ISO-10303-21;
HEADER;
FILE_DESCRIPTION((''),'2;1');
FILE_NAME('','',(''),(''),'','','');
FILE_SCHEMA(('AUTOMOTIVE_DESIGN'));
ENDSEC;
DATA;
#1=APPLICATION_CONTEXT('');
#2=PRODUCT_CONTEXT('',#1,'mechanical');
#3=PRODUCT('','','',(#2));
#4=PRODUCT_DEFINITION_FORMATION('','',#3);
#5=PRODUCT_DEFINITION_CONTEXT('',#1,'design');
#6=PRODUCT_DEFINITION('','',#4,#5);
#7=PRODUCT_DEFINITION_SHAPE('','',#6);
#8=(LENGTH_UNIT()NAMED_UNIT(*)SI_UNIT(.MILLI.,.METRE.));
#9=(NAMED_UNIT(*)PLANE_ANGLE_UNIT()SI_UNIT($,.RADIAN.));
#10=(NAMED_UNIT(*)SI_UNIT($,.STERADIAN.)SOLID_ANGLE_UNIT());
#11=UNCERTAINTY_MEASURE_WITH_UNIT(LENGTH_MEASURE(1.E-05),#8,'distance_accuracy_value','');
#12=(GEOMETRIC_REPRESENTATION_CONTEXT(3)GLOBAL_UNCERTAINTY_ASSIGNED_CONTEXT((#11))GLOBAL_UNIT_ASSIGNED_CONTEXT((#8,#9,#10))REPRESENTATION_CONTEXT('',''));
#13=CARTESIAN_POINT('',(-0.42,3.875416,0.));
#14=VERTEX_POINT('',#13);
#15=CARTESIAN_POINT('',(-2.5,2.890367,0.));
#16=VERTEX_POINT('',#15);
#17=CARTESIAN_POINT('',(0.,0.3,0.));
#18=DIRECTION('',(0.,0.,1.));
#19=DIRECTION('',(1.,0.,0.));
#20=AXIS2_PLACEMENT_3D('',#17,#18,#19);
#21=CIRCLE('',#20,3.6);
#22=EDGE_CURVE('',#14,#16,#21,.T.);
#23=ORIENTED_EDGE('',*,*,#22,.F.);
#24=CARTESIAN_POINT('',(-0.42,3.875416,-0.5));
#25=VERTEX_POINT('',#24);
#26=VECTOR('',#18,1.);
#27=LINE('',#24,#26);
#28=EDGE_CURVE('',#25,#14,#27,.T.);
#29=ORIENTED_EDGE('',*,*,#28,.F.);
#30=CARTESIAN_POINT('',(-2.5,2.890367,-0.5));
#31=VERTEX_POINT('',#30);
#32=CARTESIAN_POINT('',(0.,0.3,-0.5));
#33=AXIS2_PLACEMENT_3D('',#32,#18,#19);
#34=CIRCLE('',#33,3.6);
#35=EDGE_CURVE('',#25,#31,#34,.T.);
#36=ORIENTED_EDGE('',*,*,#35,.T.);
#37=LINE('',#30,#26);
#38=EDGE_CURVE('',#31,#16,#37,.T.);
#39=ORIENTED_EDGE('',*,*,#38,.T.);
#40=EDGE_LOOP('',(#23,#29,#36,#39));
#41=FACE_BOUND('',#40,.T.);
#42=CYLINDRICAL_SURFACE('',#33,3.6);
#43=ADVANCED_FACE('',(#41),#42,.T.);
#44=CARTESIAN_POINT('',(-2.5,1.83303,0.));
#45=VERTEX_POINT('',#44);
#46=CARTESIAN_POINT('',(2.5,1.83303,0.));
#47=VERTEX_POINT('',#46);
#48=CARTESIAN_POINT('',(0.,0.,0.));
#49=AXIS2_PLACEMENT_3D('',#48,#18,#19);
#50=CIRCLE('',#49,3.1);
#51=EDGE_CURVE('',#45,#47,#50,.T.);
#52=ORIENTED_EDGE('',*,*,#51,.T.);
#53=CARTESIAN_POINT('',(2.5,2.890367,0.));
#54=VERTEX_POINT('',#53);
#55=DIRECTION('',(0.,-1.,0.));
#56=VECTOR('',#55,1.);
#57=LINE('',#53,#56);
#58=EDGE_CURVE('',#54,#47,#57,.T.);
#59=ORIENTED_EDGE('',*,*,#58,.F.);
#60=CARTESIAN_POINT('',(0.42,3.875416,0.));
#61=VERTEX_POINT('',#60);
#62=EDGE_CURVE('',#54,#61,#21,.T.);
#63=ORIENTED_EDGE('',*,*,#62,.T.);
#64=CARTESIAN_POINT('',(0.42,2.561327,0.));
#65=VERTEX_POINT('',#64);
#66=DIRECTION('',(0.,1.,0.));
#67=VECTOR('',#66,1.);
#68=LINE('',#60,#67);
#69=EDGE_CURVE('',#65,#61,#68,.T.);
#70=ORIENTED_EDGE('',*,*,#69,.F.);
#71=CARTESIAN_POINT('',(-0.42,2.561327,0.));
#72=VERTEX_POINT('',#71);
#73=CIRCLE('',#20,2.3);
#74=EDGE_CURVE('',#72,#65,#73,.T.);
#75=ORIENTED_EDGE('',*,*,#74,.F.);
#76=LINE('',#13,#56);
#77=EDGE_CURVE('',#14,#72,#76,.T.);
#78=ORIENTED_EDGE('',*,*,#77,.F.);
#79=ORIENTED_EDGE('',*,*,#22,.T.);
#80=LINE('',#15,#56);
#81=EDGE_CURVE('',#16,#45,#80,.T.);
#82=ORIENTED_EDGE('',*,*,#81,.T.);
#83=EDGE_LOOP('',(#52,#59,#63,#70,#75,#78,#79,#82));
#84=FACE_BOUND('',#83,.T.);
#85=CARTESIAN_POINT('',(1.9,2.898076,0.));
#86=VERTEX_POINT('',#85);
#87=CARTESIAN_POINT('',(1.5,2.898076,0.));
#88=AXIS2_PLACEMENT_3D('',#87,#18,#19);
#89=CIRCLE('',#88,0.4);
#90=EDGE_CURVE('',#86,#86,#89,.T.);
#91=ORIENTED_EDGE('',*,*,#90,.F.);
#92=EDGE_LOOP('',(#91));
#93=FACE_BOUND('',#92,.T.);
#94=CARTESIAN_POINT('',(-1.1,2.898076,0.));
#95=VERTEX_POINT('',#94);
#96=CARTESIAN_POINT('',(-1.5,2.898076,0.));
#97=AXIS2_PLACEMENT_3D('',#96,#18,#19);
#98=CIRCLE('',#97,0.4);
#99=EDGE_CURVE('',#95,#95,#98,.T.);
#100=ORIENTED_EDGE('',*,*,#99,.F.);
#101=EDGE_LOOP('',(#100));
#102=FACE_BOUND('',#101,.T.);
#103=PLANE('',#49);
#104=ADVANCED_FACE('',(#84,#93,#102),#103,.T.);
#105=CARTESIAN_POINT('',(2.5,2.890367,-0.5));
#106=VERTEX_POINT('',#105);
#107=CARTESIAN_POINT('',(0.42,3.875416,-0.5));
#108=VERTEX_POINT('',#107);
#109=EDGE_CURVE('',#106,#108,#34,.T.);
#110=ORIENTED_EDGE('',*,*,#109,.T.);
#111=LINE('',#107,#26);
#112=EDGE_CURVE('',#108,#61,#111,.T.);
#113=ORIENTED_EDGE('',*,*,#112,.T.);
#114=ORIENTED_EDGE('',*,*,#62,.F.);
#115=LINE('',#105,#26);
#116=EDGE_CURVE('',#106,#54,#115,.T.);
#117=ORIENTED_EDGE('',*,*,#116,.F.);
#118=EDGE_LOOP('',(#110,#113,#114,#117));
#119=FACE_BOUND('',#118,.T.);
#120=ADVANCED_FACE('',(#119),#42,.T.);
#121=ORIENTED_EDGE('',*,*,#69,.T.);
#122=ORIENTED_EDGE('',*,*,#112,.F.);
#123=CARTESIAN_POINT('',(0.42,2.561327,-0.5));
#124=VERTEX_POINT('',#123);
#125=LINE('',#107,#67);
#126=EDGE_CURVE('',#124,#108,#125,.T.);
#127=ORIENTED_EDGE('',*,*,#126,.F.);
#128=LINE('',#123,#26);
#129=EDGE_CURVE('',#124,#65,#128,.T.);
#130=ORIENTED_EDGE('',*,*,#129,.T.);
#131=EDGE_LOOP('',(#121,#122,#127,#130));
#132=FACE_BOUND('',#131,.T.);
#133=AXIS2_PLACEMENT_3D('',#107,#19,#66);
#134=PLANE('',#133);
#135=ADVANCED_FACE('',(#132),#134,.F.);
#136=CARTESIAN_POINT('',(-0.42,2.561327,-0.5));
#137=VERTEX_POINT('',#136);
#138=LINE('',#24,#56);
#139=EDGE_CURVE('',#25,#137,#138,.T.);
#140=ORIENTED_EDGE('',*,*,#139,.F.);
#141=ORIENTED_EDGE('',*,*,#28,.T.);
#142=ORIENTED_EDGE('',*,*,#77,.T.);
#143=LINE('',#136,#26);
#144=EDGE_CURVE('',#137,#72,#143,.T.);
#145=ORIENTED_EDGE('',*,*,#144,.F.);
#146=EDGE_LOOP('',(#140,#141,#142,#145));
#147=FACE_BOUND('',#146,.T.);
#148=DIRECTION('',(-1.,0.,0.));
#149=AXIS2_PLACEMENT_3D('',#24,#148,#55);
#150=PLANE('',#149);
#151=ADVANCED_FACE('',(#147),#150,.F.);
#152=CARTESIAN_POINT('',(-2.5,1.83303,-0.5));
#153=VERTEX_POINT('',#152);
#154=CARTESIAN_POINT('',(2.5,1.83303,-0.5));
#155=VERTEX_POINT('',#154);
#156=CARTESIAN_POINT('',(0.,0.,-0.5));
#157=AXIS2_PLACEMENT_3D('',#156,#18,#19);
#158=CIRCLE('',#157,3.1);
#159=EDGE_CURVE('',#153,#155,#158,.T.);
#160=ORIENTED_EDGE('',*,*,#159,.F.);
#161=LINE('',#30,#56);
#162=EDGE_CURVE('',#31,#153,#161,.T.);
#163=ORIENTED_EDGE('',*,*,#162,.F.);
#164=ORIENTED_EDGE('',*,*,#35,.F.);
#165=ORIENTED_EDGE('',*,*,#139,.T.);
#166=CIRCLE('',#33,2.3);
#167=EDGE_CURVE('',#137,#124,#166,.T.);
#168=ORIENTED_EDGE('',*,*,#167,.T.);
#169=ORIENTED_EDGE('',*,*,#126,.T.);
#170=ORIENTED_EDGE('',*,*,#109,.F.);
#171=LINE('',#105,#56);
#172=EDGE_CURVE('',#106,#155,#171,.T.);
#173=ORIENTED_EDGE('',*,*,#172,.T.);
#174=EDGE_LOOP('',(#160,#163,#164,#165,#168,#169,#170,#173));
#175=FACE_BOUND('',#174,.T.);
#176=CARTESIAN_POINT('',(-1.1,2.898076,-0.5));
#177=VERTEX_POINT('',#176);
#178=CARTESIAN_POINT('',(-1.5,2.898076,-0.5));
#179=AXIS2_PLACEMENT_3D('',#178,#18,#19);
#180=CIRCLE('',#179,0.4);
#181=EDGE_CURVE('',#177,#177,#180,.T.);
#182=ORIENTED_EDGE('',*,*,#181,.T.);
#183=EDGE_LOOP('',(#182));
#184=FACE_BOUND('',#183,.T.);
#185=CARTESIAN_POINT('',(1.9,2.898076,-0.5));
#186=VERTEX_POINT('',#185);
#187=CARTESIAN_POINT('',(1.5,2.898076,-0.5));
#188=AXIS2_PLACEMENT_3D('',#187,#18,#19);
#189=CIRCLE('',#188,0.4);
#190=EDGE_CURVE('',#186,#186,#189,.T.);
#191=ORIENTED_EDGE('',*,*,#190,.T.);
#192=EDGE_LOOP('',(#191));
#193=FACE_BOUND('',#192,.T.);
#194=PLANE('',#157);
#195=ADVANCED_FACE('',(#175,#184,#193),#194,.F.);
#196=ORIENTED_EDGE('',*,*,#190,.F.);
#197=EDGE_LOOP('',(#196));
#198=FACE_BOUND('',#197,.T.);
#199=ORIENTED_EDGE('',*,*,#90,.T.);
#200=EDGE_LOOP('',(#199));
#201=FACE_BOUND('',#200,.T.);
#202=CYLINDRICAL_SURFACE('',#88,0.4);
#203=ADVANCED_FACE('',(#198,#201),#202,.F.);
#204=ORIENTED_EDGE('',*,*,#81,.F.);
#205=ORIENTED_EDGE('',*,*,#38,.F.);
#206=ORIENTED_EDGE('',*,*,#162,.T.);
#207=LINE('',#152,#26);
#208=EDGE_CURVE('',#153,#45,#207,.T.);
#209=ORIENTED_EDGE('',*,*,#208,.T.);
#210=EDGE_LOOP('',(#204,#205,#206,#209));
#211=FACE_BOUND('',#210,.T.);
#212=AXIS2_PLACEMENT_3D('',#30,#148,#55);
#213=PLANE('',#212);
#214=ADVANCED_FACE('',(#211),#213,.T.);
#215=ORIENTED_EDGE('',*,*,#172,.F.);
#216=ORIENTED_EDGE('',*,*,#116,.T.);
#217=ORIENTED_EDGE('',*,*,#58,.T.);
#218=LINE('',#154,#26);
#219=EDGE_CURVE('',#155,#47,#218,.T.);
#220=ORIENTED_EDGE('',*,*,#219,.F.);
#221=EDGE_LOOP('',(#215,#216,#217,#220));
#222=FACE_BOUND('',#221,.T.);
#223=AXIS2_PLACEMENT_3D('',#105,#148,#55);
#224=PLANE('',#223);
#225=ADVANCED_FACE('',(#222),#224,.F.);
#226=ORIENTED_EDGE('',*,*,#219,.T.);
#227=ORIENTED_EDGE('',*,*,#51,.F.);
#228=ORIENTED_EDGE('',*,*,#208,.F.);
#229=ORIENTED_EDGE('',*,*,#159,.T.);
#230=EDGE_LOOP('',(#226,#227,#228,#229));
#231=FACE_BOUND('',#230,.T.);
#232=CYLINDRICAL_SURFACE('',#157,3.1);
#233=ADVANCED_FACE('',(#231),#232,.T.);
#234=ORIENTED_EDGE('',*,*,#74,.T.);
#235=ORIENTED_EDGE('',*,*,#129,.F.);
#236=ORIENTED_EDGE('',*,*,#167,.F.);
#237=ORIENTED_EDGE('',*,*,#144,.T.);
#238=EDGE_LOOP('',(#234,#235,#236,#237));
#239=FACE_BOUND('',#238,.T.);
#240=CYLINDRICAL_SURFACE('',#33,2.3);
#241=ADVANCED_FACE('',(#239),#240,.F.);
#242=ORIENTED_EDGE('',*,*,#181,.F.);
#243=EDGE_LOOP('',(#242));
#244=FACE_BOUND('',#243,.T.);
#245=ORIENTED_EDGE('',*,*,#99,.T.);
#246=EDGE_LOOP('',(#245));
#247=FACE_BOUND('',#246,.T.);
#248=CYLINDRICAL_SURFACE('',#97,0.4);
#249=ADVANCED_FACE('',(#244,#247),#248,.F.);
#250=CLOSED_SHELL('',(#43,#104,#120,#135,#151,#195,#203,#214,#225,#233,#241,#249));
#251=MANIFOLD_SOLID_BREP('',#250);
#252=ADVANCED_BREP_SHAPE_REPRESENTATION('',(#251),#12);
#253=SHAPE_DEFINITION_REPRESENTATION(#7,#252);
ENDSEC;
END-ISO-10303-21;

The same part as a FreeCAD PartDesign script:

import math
import FreeCAD as App
import Part
import Sketcher
from FreeCAD import Vector

doc = App.newDocument("Part")
body = doc.addObject("PartDesign::Body", "Body")

sketch1 = body.newObject("Sketcher::SketchObject", "Sketch")
sketch1.AttachmentSupport = (doc.getObject("XY_Plane"), [""])
sketch1.MapMode = "FlatFace"
sketch1.addGeometry([
    Part.LineSegment(Vector(-2.5, 2.9, 0), Vector(-2.5, 1.8, 0)),
    Part.ArcOfCircle(Part.Circle(Vector(0, 0, 0), Vector(0, 0, 1), 3.1), math.radians(144), math.radians(396)),
    Part.LineSegment(Vector(2.5, 1.8, 0), Vector(2.5, 2.9, 0)),
    Part.ArcOfCircle(Part.Circle(Vector(0, 0.3, 0), Vector(0, 0, 1), 3.6), math.radians(46), math.radians(134)),
], False)
sketch1.addConstraint([
    Sketcher.Constraint("Coincident", 0, 2, 1, 1),
    Sketcher.Constraint("Coincident", 1, 2, 2, 1),
    Sketcher.Constraint("Coincident", 2, 2, 3, 1),
    Sketcher.Constraint("Coincident", 3, 2, 0, 1),
    Sketcher.Constraint("Vertical", 0),
    Sketcher.Constraint("Vertical", 2),
    Sketcher.Constraint("Coincident", 1, 3, -1, 1),
    Sketcher.Constraint("Symmetric", 2, 2, 3, 2, -2),
    Sketcher.Constraint("Radius", 1, 3.1),
    Sketcher.Constraint("Radius", 3, 3.6),
    Sketcher.Constraint("DistanceX", 0, 2, 1, 2, 5.0),
    Sketcher.Constraint("DistanceY", -1, 1, 3, 3, 0.3),
])
pad1 = body.newObject("PartDesign::Pad", "Pad")
pad1.Profile = sketch1
pad1.Length = 0.5
pad1.Reversed = True

sketch2 = body.newObject("Sketcher::SketchObject", "Sketch001")
sketch2.AttachmentSupport = (doc.getObject("XY_Plane"), [""])
sketch2.MapMode = "FlatFace"
sketch2.addGeometry(Part.Circle(Vector(0, 0.3, 0), Vector(0, 0, 1), 2.3), False)
sketch2.addConstraint([
    Sketcher.Constraint("PointOnObject", 0, 3, -2),
    Sketcher.Constraint("Diameter", 0, 4.6),
    Sketcher.Constraint("DistanceY", -1, 1, 0, 3, 0.3),
])
pocket1 = body.newObject("PartDesign::Pocket", "Pocket")
pocket1.Profile = sketch2
pocket1.Type = "ThroughAll"

sketch3 = body.newObject("Sketcher::SketchObject", "Sketch002")
sketch3.AttachmentSupport = (doc.getObject("XY_Plane"), [""])
sketch3.MapMode = "FlatFace"
sketch3.addGeometry([
    Part.LineSegment(Vector(-0.4, 3.9, 0), Vector(-0.4, 2.6, 0)),
    Part.ArcOfCircle(Part.Circle(Vector(0, 0.3, 0), Vector(0, 0, 1), 2.3), math.radians(79), math.radians(101)),
    Part.LineSegment(Vector(0.4, 2.6, 0), Vector(0.4, 3.9, 0)),
    Part.ArcOfCircle(Part.Circle(Vector(0, 0.3, 0), Vector(0, 0, 1), 3.6), math.radians(83.3), math.radians(96.7)),
], False)
sketch3.addConstraint([
    Sketcher.Constraint("Coincident", 0, 2, 1, 2),
    Sketcher.Constraint("Coincident", 1, 1, 2, 1),
    Sketcher.Constraint("Coincident", 2, 2, 3, 1),
    Sketcher.Constraint("Coincident", 3, 2, 0, 1),
    Sketcher.Constraint("Vertical", 0),
    Sketcher.Constraint("Vertical", 2),
    Sketcher.Constraint("Coincident", 3, 3, 1, 3),
    Sketcher.Constraint("Symmetric", 0, 2, 1, 1, -2),
    Sketcher.Constraint("Radius", 1, 2.3),
    Sketcher.Constraint("Radius", 3, 3.6),
    Sketcher.Constraint("DistanceY", -1, 1, 1, 3, 0.3),
    Sketcher.Constraint("DistanceX", 0, 2, -1, 1, 0.42),
])
pocket2 = body.newObject("PartDesign::Pocket", "Pocket001")
pocket2.Profile = sketch3
pocket2.Type = "ThroughAll"

sketch4 = body.newObject("Sketcher::SketchObject", "Sketch003")
sketch4.AttachmentSupport = (doc.getObject("XY_Plane"), [""])
sketch4.MapMode = "FlatFace"
sketch4.addGeometry([
    Part.Circle(Vector(-1.5, 2.9, 0), Vector(0, 0, 1), 0.4),
    Part.Circle(Vector(1.5, 2.9, 0), Vector(0, 0, 1), 0.4),
], False)
sketch4.addConstraint([
    Sketcher.Constraint("Equal", 0, 1),
    Sketcher.Constraint("Symmetric", 0, 3, 1, 3, -2),
    Sketcher.Constraint("Diameter", 0, 0.8),
    Sketcher.Constraint("DistanceX", 0, 3, 1, 3, 3.0),
    Sketcher.Constraint("DistanceY", -1, 1, 0, 3, 2.898076),
])
doc.recompute()
hole = body.newObject("PartDesign::Hole", "Hole")
hole.Profile = sketch4
hole.ThreadType = "None"
hole.Diameter = 0.8
hole.DepthType = "Dimension"
hole.Depth = 0.5
hole.DrillPoint = "Flat"

doc.recompute()
